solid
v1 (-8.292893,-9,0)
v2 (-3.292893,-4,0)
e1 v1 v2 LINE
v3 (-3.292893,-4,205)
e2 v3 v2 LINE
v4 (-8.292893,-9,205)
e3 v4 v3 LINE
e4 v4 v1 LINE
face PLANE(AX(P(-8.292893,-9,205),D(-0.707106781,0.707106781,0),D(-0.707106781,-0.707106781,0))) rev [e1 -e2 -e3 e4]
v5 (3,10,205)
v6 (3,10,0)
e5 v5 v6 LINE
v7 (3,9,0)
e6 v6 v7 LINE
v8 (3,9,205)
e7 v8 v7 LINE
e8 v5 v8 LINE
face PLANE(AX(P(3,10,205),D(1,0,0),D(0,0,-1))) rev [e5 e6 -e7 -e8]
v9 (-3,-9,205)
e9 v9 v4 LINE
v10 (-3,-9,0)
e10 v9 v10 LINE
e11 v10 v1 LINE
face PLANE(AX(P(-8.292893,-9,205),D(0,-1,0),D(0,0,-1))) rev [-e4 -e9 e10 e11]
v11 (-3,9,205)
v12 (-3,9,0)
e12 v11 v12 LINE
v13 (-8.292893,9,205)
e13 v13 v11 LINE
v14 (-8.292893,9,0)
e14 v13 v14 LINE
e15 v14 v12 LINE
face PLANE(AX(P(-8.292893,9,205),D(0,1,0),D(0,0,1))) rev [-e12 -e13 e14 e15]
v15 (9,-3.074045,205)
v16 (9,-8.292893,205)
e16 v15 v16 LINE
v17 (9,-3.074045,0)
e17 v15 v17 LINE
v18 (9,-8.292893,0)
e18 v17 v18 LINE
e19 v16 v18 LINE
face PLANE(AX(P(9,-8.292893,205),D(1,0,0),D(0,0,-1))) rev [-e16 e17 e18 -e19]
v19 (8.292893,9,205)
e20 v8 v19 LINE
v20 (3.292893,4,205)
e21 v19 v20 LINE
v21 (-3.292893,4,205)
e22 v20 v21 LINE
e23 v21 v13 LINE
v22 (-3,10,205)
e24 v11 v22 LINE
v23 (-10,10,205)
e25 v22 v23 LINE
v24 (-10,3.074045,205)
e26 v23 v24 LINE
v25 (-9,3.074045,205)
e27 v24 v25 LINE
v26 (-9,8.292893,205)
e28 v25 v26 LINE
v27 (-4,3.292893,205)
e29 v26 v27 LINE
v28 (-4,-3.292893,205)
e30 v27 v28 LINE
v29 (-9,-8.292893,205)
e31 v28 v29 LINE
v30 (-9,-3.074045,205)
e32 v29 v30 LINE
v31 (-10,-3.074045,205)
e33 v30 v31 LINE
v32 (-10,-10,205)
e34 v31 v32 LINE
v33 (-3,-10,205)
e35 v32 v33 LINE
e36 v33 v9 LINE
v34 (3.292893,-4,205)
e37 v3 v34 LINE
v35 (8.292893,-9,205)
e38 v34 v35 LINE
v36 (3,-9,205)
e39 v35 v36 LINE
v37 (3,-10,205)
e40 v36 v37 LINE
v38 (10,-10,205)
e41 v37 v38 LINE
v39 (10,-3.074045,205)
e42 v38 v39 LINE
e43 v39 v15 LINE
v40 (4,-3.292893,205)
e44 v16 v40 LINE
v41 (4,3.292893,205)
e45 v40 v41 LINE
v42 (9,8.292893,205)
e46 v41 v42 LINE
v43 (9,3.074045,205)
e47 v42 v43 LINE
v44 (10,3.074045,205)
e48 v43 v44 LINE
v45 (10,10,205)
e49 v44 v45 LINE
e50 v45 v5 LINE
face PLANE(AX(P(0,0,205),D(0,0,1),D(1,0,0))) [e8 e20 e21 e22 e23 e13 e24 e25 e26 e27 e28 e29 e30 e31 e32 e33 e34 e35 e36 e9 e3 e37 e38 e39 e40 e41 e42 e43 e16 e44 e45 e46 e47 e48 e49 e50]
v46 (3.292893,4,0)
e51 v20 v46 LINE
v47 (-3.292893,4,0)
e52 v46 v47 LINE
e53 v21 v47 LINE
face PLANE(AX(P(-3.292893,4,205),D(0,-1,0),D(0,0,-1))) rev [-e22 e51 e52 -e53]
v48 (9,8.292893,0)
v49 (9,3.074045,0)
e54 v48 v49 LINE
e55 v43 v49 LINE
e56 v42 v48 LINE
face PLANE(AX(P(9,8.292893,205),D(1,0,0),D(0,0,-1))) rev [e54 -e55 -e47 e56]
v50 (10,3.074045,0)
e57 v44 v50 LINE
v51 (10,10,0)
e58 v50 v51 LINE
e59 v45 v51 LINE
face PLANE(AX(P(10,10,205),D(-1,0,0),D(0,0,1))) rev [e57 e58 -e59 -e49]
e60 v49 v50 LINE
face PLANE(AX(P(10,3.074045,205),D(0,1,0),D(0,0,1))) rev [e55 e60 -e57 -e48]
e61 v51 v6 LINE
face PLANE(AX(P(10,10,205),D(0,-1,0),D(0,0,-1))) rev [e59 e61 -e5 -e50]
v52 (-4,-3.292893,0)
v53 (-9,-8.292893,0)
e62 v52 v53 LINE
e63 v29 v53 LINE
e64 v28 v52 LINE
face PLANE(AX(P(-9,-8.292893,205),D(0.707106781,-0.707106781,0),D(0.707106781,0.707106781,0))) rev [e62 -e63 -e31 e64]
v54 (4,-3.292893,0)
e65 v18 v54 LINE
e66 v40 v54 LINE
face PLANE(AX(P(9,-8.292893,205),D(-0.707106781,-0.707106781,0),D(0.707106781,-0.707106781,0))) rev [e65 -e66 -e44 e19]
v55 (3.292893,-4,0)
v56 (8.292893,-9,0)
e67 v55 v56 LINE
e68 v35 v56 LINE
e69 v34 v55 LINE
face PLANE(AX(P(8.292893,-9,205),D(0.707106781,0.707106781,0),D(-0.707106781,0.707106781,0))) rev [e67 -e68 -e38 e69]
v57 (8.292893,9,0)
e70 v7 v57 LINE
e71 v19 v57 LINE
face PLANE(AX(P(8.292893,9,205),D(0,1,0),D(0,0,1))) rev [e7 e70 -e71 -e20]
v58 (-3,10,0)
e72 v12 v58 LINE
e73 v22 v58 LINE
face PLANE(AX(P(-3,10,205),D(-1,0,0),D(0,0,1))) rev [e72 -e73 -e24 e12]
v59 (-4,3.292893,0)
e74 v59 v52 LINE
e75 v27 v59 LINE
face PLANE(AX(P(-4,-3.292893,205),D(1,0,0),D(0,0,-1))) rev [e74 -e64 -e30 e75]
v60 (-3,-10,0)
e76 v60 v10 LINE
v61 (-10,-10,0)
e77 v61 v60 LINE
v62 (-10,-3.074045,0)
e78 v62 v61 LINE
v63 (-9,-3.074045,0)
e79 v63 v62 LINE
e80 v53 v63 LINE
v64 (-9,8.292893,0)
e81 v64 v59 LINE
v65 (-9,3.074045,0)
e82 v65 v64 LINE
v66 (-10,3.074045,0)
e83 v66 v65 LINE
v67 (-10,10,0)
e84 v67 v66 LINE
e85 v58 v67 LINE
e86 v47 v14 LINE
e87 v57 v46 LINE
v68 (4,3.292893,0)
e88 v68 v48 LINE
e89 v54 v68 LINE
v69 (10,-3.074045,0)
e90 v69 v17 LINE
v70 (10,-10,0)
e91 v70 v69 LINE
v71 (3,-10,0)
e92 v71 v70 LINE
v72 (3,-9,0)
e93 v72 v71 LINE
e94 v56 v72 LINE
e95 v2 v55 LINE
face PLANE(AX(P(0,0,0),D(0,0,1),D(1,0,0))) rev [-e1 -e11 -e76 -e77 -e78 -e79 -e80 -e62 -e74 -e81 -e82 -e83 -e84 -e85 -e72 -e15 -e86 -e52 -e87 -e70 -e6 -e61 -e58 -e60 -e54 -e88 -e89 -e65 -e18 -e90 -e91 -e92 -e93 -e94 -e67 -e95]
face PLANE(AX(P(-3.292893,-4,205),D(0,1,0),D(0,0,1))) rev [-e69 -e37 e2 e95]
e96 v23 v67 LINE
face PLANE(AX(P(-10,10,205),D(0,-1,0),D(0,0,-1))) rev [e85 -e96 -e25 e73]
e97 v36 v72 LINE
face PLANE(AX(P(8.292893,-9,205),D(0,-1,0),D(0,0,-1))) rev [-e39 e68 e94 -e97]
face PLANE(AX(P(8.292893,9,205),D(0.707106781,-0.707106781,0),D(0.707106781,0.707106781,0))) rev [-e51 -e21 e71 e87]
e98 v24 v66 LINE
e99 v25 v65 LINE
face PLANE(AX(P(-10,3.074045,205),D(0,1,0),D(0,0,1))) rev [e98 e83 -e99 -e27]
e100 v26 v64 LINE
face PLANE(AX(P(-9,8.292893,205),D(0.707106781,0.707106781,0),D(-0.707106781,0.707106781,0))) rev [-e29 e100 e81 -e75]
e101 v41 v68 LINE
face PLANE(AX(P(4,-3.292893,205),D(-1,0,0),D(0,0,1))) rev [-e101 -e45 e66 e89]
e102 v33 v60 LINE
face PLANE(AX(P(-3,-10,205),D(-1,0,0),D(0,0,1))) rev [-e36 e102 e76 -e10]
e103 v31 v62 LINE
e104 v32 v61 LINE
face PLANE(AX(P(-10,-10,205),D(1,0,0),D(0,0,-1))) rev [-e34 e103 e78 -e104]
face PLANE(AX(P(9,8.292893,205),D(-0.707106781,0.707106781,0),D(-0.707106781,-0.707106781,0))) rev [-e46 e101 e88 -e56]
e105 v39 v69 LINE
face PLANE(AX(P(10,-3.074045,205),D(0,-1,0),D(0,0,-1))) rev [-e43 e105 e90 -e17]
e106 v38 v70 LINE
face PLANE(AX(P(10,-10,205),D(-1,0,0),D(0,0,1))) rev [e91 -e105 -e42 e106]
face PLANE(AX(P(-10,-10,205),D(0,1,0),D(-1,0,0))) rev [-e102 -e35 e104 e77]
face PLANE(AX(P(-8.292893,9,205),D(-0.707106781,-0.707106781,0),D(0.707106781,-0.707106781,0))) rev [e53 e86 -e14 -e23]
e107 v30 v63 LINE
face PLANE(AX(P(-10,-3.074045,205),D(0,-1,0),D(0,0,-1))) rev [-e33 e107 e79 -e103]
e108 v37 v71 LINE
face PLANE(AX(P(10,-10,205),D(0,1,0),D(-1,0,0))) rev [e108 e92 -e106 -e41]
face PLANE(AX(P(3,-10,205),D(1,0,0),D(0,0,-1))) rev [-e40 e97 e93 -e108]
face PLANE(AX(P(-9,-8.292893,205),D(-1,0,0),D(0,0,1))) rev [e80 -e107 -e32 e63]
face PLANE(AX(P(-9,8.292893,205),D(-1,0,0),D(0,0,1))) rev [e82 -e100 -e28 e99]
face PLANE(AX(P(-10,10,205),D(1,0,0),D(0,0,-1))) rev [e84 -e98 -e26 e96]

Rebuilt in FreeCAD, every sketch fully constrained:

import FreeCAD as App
import Part
import Sketcher

V = App.Vector


def add_polygon(sketch, points):
    """Adds a closed chain of lines whose ends are joined by coincident constraints."""
    first, n = sketch.GeometryCount, len(points)
    for a, b in zip(points, points[1:] + points[:1]):
        sketch.addGeometry(Part.LineSegment(App.Vector(*a, 0), App.Vector(*b, 0)), False)
    for i in range(n):
        sketch.addConstraint(Sketcher.Constraint("Coincident", first + i, 2, first + (i + 1) % n, 1))

doc = App.newDocument("Part")
body = doc.addObject("PartDesign::Body", "Body")

sketch1 = body.newObject("Sketcher::SketchObject", "Sketch")
sketch1.AttachmentSupport = (doc.getObject("XY_Plane"), [""])
sketch1.MapMode = "FlatFace"
add_polygon(sketch1, [(-3, 10), (-10, 10), (-10, 3.1), (-9, 3.1), (-9, 8.3), (-4, 3.3), (-4, -3.3), (-9, -8.3), (-9, -3.1), (-10, -3.1), (-10, -10), (-3, -10), (-3, -9), (-8.3, -9), (-3.3, -4), (3.3, -4), (8.3, -9), (3, -9), (3, -10), (10, -10), (10, -3.1), (9, -3.1), (9, -8.3), (4, -3.3), (4, 3.3), (9, 8.3), (9, 3.1), (10, 3.1), (10, 10), (3, 10), (3, 9), (8.3, 9), (3.3, 4), (-3.3, 4), (-8.3, 9), (-3, 9)])
sketch1.addConstraint([
    Sketcher.Constraint("Horizontal", 0),
    Sketcher.Constraint("Vertical", 1),
    Sketcher.Constraint("Horizontal", 2),
    Sketcher.Constraint("Vertical", 3),
    Sketcher.Constraint("Vertical", 5),
    Sketcher.Constraint("Vertical", 7),
    Sketcher.Constraint("Horizontal", 8),
    Sketcher.Constraint("Vertical", 9),
    Sketcher.Constraint("Horizontal", 10),
    Sketcher.Constraint("Vertical", 11),
    Sketcher.Constraint("Horizontal", 12),
    Sketcher.Constraint("Horizontal", 14),
    Sketcher.Constraint("Horizontal", 16),
    Sketcher.Constraint("Vertical", 17),
    Sketcher.Constraint("Horizontal", 18),
    Sketcher.Constraint("Vertical", 19),
    Sketcher.Constraint("Horizontal", 20),
    Sketcher.Constraint("Vertical", 21),
    Sketcher.Constraint("Vertical", 23),
    Sketcher.Constraint("Vertical", 25),
    Sketcher.Constraint("Horizontal", 26),
    Sketcher.Constraint("Vertical", 27),
    Sketcher.Constraint("Horizontal", 28),
    Sketcher.Constraint("Vertical", 29),
    Sketcher.Constraint("Horizontal", 30),
    Sketcher.Constraint("Horizontal", 32),
    Sketcher.Constraint("Horizontal", 34),
    Sketcher.Constraint("Vertical", 35),
    Sketcher.Constraint("Symmetric", 0, 2, 18, 2, -1, 1),
    Sketcher.Constraint("Symmetric", 2, 2, 20, 2, -1, 1),
    Sketcher.Constraint("Symmetric", 4, 2, 22, 2, -1, 1),
    Sketcher.Constraint("Symmetric", 6, 2, 24, 2, -1, 1),
    Sketcher.Constraint("Symmetric", 8, 2, 26, 2, -1, 1),
    Sketcher.Constraint("Symmetric", 10, 2, 28, 2, -1, 1),
    Sketcher.Constraint("Symmetric", 12, 2, 30, 2, -1, 1),
    Sketcher.Constraint("Symmetric", 13, 2, 31, 2, -1, 1),
    Sketcher.Constraint("Symmetric", 15, 2, 33, 2, -1, 1),
    Sketcher.Constraint("Symmetric", 12, 2, 15, 2, -2),
    Sketcher.Constraint("Symmetric", 10, 2, 17, 2, -2),
    Sketcher.Constraint("Symmetric", 8, 2, 19, 2, -2),
    Sketcher.Constraint("Symmetric", 6, 2, 21, 2, -2),
    Sketcher.Constraint("Perpendicular", 4, 6),
    Sketcher.Constraint("Parallel", 6, 13),
    Sketcher.Constraint("Perpendicular", 13, 15),
    Sketcher.Constraint("Parallel", 15, 22),
    Sketcher.Constraint("Perpendicular", 22, 24),
    Sketcher.Constraint("Perpendicular", 31, 33),
    Sketcher.Constraint("Horizontal", 5, 2, 22, 2),
    Sketcher.Constraint("Vertical", 11, 2, 34, 2),
    Sketcher.Constraint("Equal", 32, 5),
    Sketcher.Constraint("Equal", 26, 11),
    Sketcher.Constraint("Equal", 6, 13),
    Sketcher.Constraint("DistanceX", 0, 2, 0, 1, 7.0),
    Sketcher.Constraint("DistanceX", 2, 1, 2, 2, 1.0),
    Sketcher.Constraint("DistanceX", 0, 2, -1, 1, 10.0),
    Sketcher.Constraint("DistanceY", -1, 1, 0, 2, 10.0),
    Sketcher.Constraint("DistanceX", 4, 2, -1, 1, 4.0),
    Sketcher.Constraint("DistanceY", 3, 1, 3, 2, 5.218849),
    Sketcher.Constraint("DistanceX", 12, 2, 12, 1, 5.292893),
])
pad1 = body.newObject("PartDesign::Pad", "Pad")
pad1.Profile = sketch1
pad1.Length = 205

doc.recompute()
